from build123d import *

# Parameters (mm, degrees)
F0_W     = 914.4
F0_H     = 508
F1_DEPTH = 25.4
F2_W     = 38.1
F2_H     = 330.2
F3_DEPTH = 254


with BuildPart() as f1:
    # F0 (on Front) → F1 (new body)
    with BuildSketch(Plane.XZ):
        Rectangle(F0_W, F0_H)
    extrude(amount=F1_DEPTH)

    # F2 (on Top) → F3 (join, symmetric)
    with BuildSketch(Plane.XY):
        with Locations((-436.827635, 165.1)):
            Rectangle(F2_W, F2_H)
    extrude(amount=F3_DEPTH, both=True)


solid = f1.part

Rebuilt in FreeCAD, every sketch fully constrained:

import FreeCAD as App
import Part
import Sketcher
from FreeCAD import Vector
Q = App.Units.Quantity


def add_polygon(sketch, points):
    """Adds a closed chain of lines whose ends are joined by coincident constraints."""
    first, n = sketch.GeometryCount, len(points)
    for a, b in zip(points, points[1:] + points[:1]):
        sketch.addGeometry(Part.LineSegment(App.Vector(*a, 0), App.Vector(*b, 0)), False)
    for i in range(n):
        sketch.addConstraint(Sketcher.Constraint("Coincident", first + i, 2, first + (i + 1) % n, 1))

doc = App.newDocument("Part")
params = doc.addObject("Spreadsheet::Sheet", "Params")
for row, (alias, value) in enumerate([
    ("sketch1_width", "36 in"),
    ("sketch1_height", "20 in"),
    ("pad1_length", "1 in"),
    ("sketch2_height", "13 in"),
    ("sketch2_width", "1.5 in"),
    ("pad2_length", "20 in"),
], start=1):
    params.set(f"A{row}", alias)
    params.set(f"B{row}", "=" + value)
    params.setAlias(f"B{row}", alias)

body = doc.addObject("PartDesign::Body", "Body")

# Sketch on XZ plane
sketch1 = body.newObject("Sketcher::SketchObject", "Sketch")
sketch1.AttachmentSupport = (doc.getObject("XZ_Plane"), [""])
sketch1.MapMode = "FlatFace"
add_polygon(sketch1, [(-457.2, 254), (-457.2, -254), (457.2, -254), (457.2, 254)])  # lines 0-3
sketch1.addConstraint([
    Sketcher.Constraint("Vertical", 0),
    Sketcher.Constraint("Horizontal", 1),
    Sketcher.Constraint("Vertical", 2),
    Sketcher.Constraint("Horizontal", 3),
    Sketcher.Constraint("Symmetric", 0, 2, 2, 2, -1, 1),
    Sketcher.Constraint("DistanceX", 1, 1, 1, 2, Q("36 in")),
    Sketcher.Constraint("DistanceY", 0, 2, 0, 1, Q("20 in")),
])
sketch1.setExpression("Constraints[9]", "Params.sketch1_width")
sketch1.setExpression("Constraints[10]", "Params.sketch1_height")
pad1 = body.newObject("PartDesign::Pad", "Pad")
pad1.Profile = sketch1
pad1.setExpression("Length", "Params.pad1_length")

# Sketch on XY plane
sketch2 = body.newObject("Sketcher::SketchObject", "Sketch001")
sketch2.AttachmentSupport = (doc.getObject("XY_Plane"), [""])
sketch2.MapMode = "FlatFace"
add_polygon(sketch2, [(-455.877635, 330.2), (-455.877635, 0), (-417.777635, 0), (-417.777635, 330.2)])  # lines 0-3
sketch2.addConstraint([
    Sketcher.Constraint("Vertical", 0),
    Sketcher.Constraint("Horizontal", 1),
    Sketcher.Constraint("Vertical", 2),
    Sketcher.Constraint("Horizontal", 3),
    Sketcher.Constraint("PointOnObject", 0, 2, -1),
    Sketcher.Constraint("DistanceY", 0, 2, 0, 1, Q("13 in")),
    Sketcher.Constraint("DistanceX", 1, 1, 1, 2, Q("1.5 in")),
    Sketcher.Constraint("DistanceX", 0, 2, -1, 1, 455.877635),
])
sketch2.setExpression("Constraints[9]", "Params.sketch2_height")
sketch2.setExpression("Constraints[10]", "Params.sketch2_width")
pad2 = body.newObject("PartDesign::Pad", "Pad001")
pad2.Profile = sketch2
pad2.setExpression("Length", "Params.pad2_length")
pad2.Midplane = True

doc.recompute()
